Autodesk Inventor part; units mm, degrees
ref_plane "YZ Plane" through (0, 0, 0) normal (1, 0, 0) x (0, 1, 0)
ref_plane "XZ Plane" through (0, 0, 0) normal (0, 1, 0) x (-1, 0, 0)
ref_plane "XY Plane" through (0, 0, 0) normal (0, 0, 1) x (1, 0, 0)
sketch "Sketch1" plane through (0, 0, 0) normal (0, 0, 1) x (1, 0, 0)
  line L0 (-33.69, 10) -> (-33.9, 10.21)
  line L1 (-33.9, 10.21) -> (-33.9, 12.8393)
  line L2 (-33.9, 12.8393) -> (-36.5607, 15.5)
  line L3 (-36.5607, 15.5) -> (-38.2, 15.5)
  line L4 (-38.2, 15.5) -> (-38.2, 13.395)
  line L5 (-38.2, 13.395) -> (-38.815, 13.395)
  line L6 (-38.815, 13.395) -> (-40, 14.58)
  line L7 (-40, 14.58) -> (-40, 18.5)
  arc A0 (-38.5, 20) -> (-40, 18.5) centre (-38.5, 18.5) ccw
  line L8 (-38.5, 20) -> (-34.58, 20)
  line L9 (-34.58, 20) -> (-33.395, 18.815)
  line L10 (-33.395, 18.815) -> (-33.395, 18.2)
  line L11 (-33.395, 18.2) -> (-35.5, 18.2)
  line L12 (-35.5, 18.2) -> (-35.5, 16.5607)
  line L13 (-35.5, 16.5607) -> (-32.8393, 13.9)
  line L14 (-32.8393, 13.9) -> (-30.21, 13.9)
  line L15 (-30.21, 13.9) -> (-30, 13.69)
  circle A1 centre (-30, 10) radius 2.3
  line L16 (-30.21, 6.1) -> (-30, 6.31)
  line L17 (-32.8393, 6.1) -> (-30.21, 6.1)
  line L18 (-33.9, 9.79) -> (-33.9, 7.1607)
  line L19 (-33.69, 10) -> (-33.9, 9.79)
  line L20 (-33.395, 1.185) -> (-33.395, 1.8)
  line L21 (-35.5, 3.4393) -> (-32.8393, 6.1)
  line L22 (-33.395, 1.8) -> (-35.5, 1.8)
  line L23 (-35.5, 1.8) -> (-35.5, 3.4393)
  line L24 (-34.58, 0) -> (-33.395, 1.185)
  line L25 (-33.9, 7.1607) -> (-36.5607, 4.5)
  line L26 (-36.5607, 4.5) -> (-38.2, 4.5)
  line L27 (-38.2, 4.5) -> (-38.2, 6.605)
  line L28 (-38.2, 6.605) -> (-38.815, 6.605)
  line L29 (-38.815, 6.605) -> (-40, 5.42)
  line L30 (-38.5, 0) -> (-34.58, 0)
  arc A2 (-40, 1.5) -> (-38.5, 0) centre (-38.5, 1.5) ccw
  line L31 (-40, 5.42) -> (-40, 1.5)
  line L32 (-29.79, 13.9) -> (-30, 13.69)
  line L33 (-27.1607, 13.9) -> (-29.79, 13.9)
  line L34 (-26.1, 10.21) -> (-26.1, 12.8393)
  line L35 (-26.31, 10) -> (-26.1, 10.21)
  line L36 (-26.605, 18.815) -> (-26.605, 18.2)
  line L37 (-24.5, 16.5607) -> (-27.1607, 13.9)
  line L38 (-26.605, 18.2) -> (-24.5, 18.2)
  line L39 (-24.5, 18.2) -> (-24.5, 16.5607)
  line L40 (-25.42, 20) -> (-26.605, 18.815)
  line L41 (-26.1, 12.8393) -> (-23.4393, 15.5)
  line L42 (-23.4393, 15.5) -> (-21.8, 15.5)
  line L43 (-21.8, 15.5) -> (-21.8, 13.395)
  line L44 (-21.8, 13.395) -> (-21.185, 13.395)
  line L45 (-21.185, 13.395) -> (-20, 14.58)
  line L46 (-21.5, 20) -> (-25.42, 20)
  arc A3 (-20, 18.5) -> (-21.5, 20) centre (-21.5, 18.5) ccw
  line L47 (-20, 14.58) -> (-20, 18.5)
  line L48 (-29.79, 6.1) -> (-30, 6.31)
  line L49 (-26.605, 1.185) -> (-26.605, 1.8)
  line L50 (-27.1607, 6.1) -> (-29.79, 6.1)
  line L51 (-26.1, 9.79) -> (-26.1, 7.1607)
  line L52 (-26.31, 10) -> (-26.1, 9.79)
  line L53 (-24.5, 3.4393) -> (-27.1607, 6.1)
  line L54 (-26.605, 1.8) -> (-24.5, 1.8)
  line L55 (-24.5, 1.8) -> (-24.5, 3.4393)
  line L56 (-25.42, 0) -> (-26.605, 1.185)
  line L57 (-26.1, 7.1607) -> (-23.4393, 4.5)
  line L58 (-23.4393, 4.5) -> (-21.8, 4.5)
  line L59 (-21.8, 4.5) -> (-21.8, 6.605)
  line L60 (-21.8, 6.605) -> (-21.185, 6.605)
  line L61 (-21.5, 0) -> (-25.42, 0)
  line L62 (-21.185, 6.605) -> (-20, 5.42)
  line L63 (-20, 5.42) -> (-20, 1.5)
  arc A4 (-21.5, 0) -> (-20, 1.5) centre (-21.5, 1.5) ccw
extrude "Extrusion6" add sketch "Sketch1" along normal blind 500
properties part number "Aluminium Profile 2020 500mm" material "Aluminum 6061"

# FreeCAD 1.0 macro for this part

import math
import FreeCAD as App
import Part
import Sketcher

V = App.Vector

doc = App.newDocument("Part")
body = doc.addObject("PartDesign::Body", "Body")

sketch1 = doc.addObject("Sketcher::SketchObject", "Sketch")
body.addObject(sketch1)
sketch1.AttachmentSupport = (doc.XY_Plane, [""])
sketch1.MapMode = "FlatFace"
sketch1.addGeometry([
    Part.LineSegment(V(-33.9, 10.21, 0), V(-33.69, 10, 0)),
    Part.LineSegment(V(-33.69, 10, 0), V(-33.9, 9.79, 0)),
    Part.LineSegment(V(-33.9, 9.79, 0), V(-33.9, 7.16, 0)),
    Part.LineSegment(V(-33.9, 7.16, 0), V(-36.56, 4.5, 0)),
    Part.LineSegment(V(-36.56, 4.5, 0), V(-38.2, 4.5, 0)),
    Part.LineSegment(V(-38.2, 4.5, 0), V(-38.2, 6.61, 0)),
    Part.LineSegment(V(-38.2, 6.61, 0), V(-38.81, 6.61, 0)),
    Part.LineSegment(V(-38.81, 6.61, 0), V(-40, 5.42, 0)),
    Part.LineSegment(V(-40, 5.42, 0), V(-40, 1.5, 0)),
    Part.ArcOfCircle(Part.Circle(V(-38.5, 1.5, 0), V(0, 0, 1), 1.5), math.radians(180), math.radians(270)),
    Part.LineSegment(V(-38.5, 0, 0), V(-34.58, 0, 0)),
    Part.LineSegment(V(-34.58, 0, 0), V(-33.4, 1.19, 0)),
    Part.LineSegment(V(-33.4, 1.19, 0), V(-33.4, 1.8, 0)),
    Part.LineSegment(V(-33.4, 1.8, 0), V(-35.5, 1.8, 0)),
    Part.LineSegment(V(-35.5, 1.8, 0), V(-35.5, 3.44, 0)),
    Part.LineSegment(V(-35.5, 3.44, 0), V(-32.84, 6.1, 0)),
    Part.LineSegment(V(-32.84, 6.1, 0), V(-30.21, 6.1, 0)),
    Part.LineSegment(V(-30.21, 6.1, 0), V(-30, 6.31, 0)),
    Part.LineSegment(V(-30, 6.31, 0), V(-29.79, 6.1, 0)),
    Part.LineSegment(V(-29.79, 6.1, 0), V(-27.16, 6.1, 0)),
    Part.LineSegment(V(-27.16, 6.1, 0), V(-24.5, 3.44, 0)),
    Part.LineSegment(V(-24.5, 3.44, 0), V(-24.5, 1.8, 0)),
    Part.LineSegment(V(-24.5, 1.8, 0), V(-26.61, 1.8, 0)),
    Part.LineSegment(V(-26.61, 1.8, 0), V(-26.61, 1.19, 0)),
    Part.LineSegment(V(-26.61, 1.19, 0), V(-25.42, 0, 0)),
    Part.LineSegment(V(-25.42, 0, 0), V(-21.5, 0, 0)),
    Part.ArcOfCircle(Part.Circle(V(-21.5, 1.5, 0), V(0, 0, 1), 1.5), math.radians(-90), math.radians(0)),
    Part.LineSegment(V(-20, 1.5, 0), V(-20, 5.42, 0)),
    Part.LineSegment(V(-20, 5.42, 0), V(-21.18, 6.61, 0)),
    Part.LineSegment(V(-21.18, 6.61, 0), V(-21.8, 6.61, 0)),
    Part.LineSegment(V(-21.8, 6.61, 0), V(-21.8, 4.5, 0)),
    Part.LineSegment(V(-21.8, 4.5, 0), V(-23.44, 4.5, 0)),
    Part.LineSegment(V(-23.44, 4.5, 0), V(-26.1, 7.16, 0)),
    Part.LineSegment(V(-26.1, 7.16, 0), V(-26.1, 9.79, 0)),
    Part.LineSegment(V(-26.1, 9.79, 0), V(-26.31, 10, 0)),
    Part.LineSegment(V(-26.31, 10, 0), V(-26.1, 10.21, 0)),
    Part.LineSegment(V(-26.1, 10.21, 0), V(-26.1, 12.84, 0)),
    Part.LineSegment(V(-26.1, 12.84, 0), V(-23.44, 15.5, 0)),
    Part.LineSegment(V(-23.44, 15.5, 0), V(-21.8, 15.5, 0)),
    Part.LineSegment(V(-21.8, 15.5, 0), V(-21.8, 13.39, 0)),
    Part.LineSegment(V(-21.8, 13.39, 0), V(-21.18, 13.39, 0)),
    Part.LineSegment(V(-21.18, 13.39, 0), V(-20, 14.58, 0)),
    Part.LineSegment(V(-20, 14.58, 0), V(-20, 18.5, 0)),
    Part.ArcOfCircle(Part.Circle(V(-21.5, 18.5, 0), V(0, 0, 1), 1.5), math.radians(0), math.radians(90)),
    Part.LineSegment(V(-21.5, 20, 0), V(-25.42, 20, 0)),
    Part.LineSegment(V(-25.42, 20, 0), V(-26.61, 18.82, 0)),
    Part.LineSegment(V(-26.61, 18.82, 0), V(-26.61, 18.2, 0)),
    Part.LineSegment(V(-26.61, 18.2, 0), V(-24.5, 18.2, 0)),
    Part.LineSegment(V(-24.5, 18.2, 0), V(-24.5, 16.56, 0)),
    Part.LineSegment(V(-24.5, 16.56, 0), V(-27.16, 13.9, 0)),
    Part.LineSegment(V(-27.16, 13.9, 0), V(-29.79, 13.9, 0)),
    Part.LineSegment(V(-29.79, 13.9, 0), V(-30, 13.69, 0)),
    Part.LineSegment(V(-30, 13.69, 0), V(-30.21, 13.9, 0)),
    Part.LineSegment(V(-30.21, 13.9, 0), V(-32.84, 13.9, 0)),
    Part.LineSegment(V(-32.84, 13.9, 0), V(-35.5, 16.56, 0)),
    Part.LineSegment(V(-35.5, 16.56, 0), V(-35.5, 18.2, 0)),
    Part.LineSegment(V(-35.5, 18.2, 0), V(-33.4, 18.2, 0)),
    Part.LineSegment(V(-33.4, 18.2, 0), V(-33.4, 18.82, 0)),
    Part.LineSegment(V(-33.4, 18.82, 0), V(-34.58, 20, 0)),
    Part.LineSegment(V(-34.58, 20, 0), V(-38.5, 20, 0)),
    Part.ArcOfCircle(Part.Circle(V(-38.5, 18.5, 0), V(0, 0, 1), 1.5), math.radians(90), math.radians(180)),
    Part.LineSegment(V(-40, 18.5, 0), V(-40, 14.58, 0)),
    Part.LineSegment(V(-40, 14.58, 0), V(-38.81, 13.39, 0)),
    Part.LineSegment(V(-38.81, 13.39, 0), V(-38.2, 13.39, 0)),
    Part.LineSegment(V(-38.2, 13.39, 0), V(-38.2, 15.5, 0)),
    Part.LineSegment(V(-38.2, 15.5, 0), V(-36.56, 15.5, 0)),
    Part.LineSegment(V(-36.56, 15.5, 0), V(-33.9, 12.84, 0)),
    Part.LineSegment(V(-33.9, 12.84, 0), V(-33.9, 10.21, 0)),
    Part.Circle(V(-30, 10, 0), V(0, 0, 1), 2.3),
], False)
sketch1.addConstraint([
    Sketcher.Constraint("Coincident", 0, 2, 1, 1),
    Sketcher.Constraint("Coincident", 1, 2, 2, 1),
    Sketcher.Constraint("Coincident", 2, 2, 3, 1),
    Sketcher.Constraint("Coincident", 3, 2, 4, 1),
    Sketcher.Constraint("Coincident", 4, 2, 5, 1),
    Sketcher.Constraint("Coincident", 5, 2, 6, 1),
    Sketcher.Constraint("Coincident", 6, 2, 7, 1),
    Sketcher.Constraint("Coincident", 7, 2, 8, 1),
    Sketcher.Constraint("Tangent", 8, 2, 9, 1),
    Sketcher.Constraint("Tangent", 9, 2, 10, 1),
    Sketcher.Constraint("Coincident", 10, 2, 11, 1),
    Sketcher.Constraint("Coincident", 11, 2, 12, 1),
    Sketcher.Constraint("Coincident", 12, 2, 13, 1),
    Sketcher.Constraint("Coincident", 13, 2, 14, 1),
    Sketcher.Constraint("Coincident", 14, 2, 15, 1),
    Sketcher.Constraint("Coincident", 15, 2, 16, 1),
    Sketcher.Constraint("Coincident", 16, 2, 17, 1),
    Sketcher.Constraint("Coincident", 17, 2, 18, 1),
    Sketcher.Constraint("Coincident", 18, 2, 19, 1),
    Sketcher.Constraint("Coincident", 19, 2, 20, 1),
    Sketcher.Constraint("Coincident", 20, 2, 21, 1),
    Sketcher.Constraint("Coincident", 21, 2, 22, 1),
    Sketcher.Constraint("Coincident", 22, 2, 23, 1),
    Sketcher.Constraint("Coincident", 23, 2, 24, 1),
    Sketcher.Constraint("Coincident", 24, 2, 25, 1),
    Sketcher.Constraint("Tangent", 25, 2, 26, 1),
    Sketcher.Constraint("Tangent", 26, 2, 27, 1),
    Sketcher.Constraint("Coincident", 27, 2, 28, 1),
    Sketcher.Constraint("Coincident", 28, 2, 29, 1),
    Sketcher.Constraint("Coincident", 29, 2, 30, 1),
    Sketcher.Constraint("Coincident", 30, 2, 31, 1),
    Sketcher.Constraint("Coincident", 31, 2, 32, 1),
    Sketcher.Constraint("Coincident", 32, 2, 33, 1),
    Sketcher.Constraint("Coincident", 33, 2, 34, 1),
    Sketcher.Constraint("Coincident", 34, 2, 35, 1),
    Sketcher.Constraint("Coincident", 35, 2, 36, 1),
    Sketcher.Constraint("Coincident", 36, 2, 37, 1),
    Sketcher.Constraint("Coincident", 37, 2, 38, 1),
    Sketcher.Constraint("Coincident", 38, 2, 39, 1),
    Sketcher.Constraint("Coincident", 39, 2, 40, 1),
    Sketcher.Constraint("Coincident", 40, 2, 41, 1),
    Sketcher.Constraint("Coincident", 41, 2, 42, 1),
    Sketcher.Constraint("Tangent", 42, 2, 43, 1),
    Sketcher.Constraint("Tangent", 43, 2, 44, 1),
    Sketcher.Constraint("Coincident", 44, 2, 45, 1),
    Sketcher.Constraint("Coincident", 45, 2, 46, 1),
    Sketcher.Constraint("Coincident", 46, 2, 47, 1),
    Sketcher.Constraint("Coincident", 47, 2, 48, 1),
    Sketcher.Constraint("Coincident", 48, 2, 49, 1),
    Sketcher.Constraint("Coincident", 49, 2, 50, 1),
    Sketcher.Constraint("Coincident", 50, 2, 51, 1),
    Sketcher.Constraint("Coincident", 51, 2, 52, 1),
    Sketcher.Constraint("Coincident", 52, 2, 53, 1),
    Sketcher.Constraint("Coincident", 53, 2, 54, 1),
    Sketcher.Constraint("Coincident", 54, 2, 55, 1),
    Sketcher.Constraint("Coincident", 55, 2, 56, 1),
    Sketcher.Constraint("Coincident", 56, 2, 57, 1),
    Sketcher.Constraint("Coincident", 57, 2, 58, 1),
    Sketcher.Constraint("Coincident", 58, 2, 59, 1),
    Sketcher.Constraint("Tangent", 59, 2, 60, 1),
    Sketcher.Constraint("Tangent", 60, 2, 61, 1),
    Sketcher.Constraint("Coincident", 61, 2, 62, 1),
    Sketcher.Constraint("Coincident", 62, 2, 63, 1),
    Sketcher.Constraint("Coincident", 63, 2, 64, 1),
    Sketcher.Constraint("Coincident", 64, 2, 65, 1),
    Sketcher.Constraint("Coincident", 65, 2, 66, 1),
    Sketcher.Constraint("Coincident", 66, 2, 67, 1),
    Sketcher.Constraint("Coincident", 67, 2, 0, 1),
    Sketcher.Constraint("Vertical", 2),
    Sketcher.Constraint("Horizontal", 4),
    Sketcher.Constraint("Vertical", 5),
    Sketcher.Constraint("Horizontal", 6),
    Sketcher.Constraint("Vertical", 8),
    Sketcher.Constraint("Horizontal", 10),
    Sketcher.Constraint("Vertical", 12),
    Sketcher.Constraint("Horizontal", 13),
    Sketcher.Constraint("Vertical", 14),
    Sketcher.Constraint("Horizontal", 16),
    Sketcher.Constraint("Horizontal", 19),
    Sketcher.Constraint("Vertical", 21),
    Sketcher.Constraint("Horizontal", 22),
    Sketcher.Constraint("Vertical", 23),
    Sketcher.Constraint("Horizontal", 25),
    Sketcher.Constraint("Vertical", 27),
    Sketcher.Constraint("Horizontal", 29),
    Sketcher.Constraint("Vertical", 30),
    Sketcher.Constraint("Horizontal", 31),
    Sketcher.Constraint("Vertical", 33),
    Sketcher.Constraint("Vertical", 36),
    Sketcher.Constraint("Horizontal", 38),
    Sketcher.Constraint("Vertical", 39),
    Sketcher.Constraint("Horizontal", 40),
    Sketcher.Constraint("Vertical", 42),
    Sketcher.Constraint("Horizontal", 44),
    Sketcher.Constraint("Vertical", 46),
    Sketcher.Constraint("Horizontal", 47),
    Sketcher.Constraint("Vertical", 48),
    Sketcher.Constraint("Horizontal", 50),
    Sketcher.Constraint("Horizontal", 53),
    Sketcher.Constraint("Vertical", 55),
    Sketcher.Constraint("Horizontal", 56),
    Sketcher.Constraint("Vertical", 57),
    Sketcher.Constraint("Horizontal", 59),
    Sketcher.Constraint("Vertical", 61),
    Sketcher.Constraint("Horizontal", 63),
    Sketcher.Constraint("Vertical", 64),
    Sketcher.Constraint("Horizontal", 65),
    Sketcher.Constraint("Vertical", 67),
    Sketcher.Constraint("Equal", 9, 26),
    Sketcher.Constraint("Equal", 26, 43),
    Sketcher.Constraint("Equal", 43, 60),
    Sketcher.Constraint("PointOnObject", 9, 2, -1),
    Sketcher.Constraint("PointOnObject", 24, 2, -1),
    Sketcher.Constraint("Perpendicular", 0, 1),
    Sketcher.Constraint("Parallel", 1, 3),
    Sketcher.Constraint("Parallel", 3, 7),
    Sketcher.Constraint("Parallel", 7, 11),
    Sketcher.Constraint("Parallel", 11, 15),
    Sketcher.Constraint("Parallel", 15, 17),
    Sketcher.Constraint("Perpendicular", 17, 18),
    Sketcher.Constraint("Parallel", 18, 20),
    Sketcher.Constraint("Parallel", 20, 24),
    Sketcher.Constraint("Parallel", 24, 28),
    Sketcher.Constraint("Parallel", 28, 32),
    Sketcher.Constraint("Parallel", 32, 34),
    Sketcher.Constraint("Perpendicular", 34, 35),
    Sketcher.Constraint("Parallel", 35, 37),
    Sketcher.Constraint("Parallel", 37, 41),
    Sketcher.Constraint("Parallel", 41, 45),
    Sketcher.Constraint("Parallel", 45, 49),
    Sketcher.Constraint("Parallel", 49, 51),
    Sketcher.Constraint("Perpendicular", 51, 52),
    Sketcher.Constraint("Parallel", 52, 54),
    Sketcher.Constraint("Parallel", 54, 58),
    Sketcher.Constraint("Parallel", 58, 62),
    Sketcher.Constraint("Parallel", 62, 66),
    Sketcher.Constraint("Horizontal", 43, 3, 60, 3),
    Sketcher.Constraint("Horizontal", 68, 3, 0, 2),
    Sketcher.Constraint("Horizontal", 16, 2, 18, 2),
    Sketcher.Constraint("Horizontal", 14, 2, 20, 2),
    Sketcher.Constraint("Horizontal", 13, 2, 21, 2),
    Sketcher.Constraint("Horizontal", 11, 2, 23, 2),
    Sketcher.Constraint("Horizontal", 7, 2, 27, 2),
    Sketcher.Constraint("Horizontal", 6, 2, 28, 2),
    Sketcher.Constraint("Horizontal", 4, 2, 30, 2),
    Sketcher.Constraint("Horizontal", 2, 2, 32, 2),
    Sketcher.Constraint("Horizontal", 1, 2, 33, 2),
    Sketcher.Constraint("Horizontal", 0, 2, 34, 2),
    Sketcher.Constraint("Horizontal", 50, 2, 52, 2),
    Sketcher.Constraint("Horizontal", 48, 2, 54, 2),
    Sketcher.Constraint("Horizontal", 47, 2, 55, 2),
    Sketcher.Constraint("Horizontal", 45, 2, 57, 2),
    Sketcher.Constraint("Horizontal", 41, 2, 61, 2),
    Sketcher.Constraint("Horizontal", 40, 2, 62, 2),
    Sketcher.Constraint("Horizontal", 38, 2, 64, 2),
    Sketcher.Constraint("Horizontal", 36, 2, 66, 2),
    Sketcher.Constraint("Horizontal", 35, 2, 67, 2),
    Sketcher.Constraint("Vertical", 26, 3, 43, 3),
    Sketcher.Constraint("Vertical", 9, 3, 60, 3),
    Sketcher.Constraint("Vertical", 68, 3, 17, 2),
    Sketcher.Constraint("Vertical", 33, 2, 35, 2),
    Sketcher.Constraint("Vertical", 31, 2, 37, 2),
    Sketcher.Constraint("Vertical", 30, 2, 38, 2),
    Sketcher.Constraint("Vertical", 28, 2, 40, 2),
    Sketcher.Constraint("Vertical", 24, 2, 44, 2),
    Sketcher.Constraint("Vertical", 23, 2, 45, 2),
    Sketcher.Constraint("Vertical", 21, 2, 47, 2),
    Sketcher.Constraint("Vertical", 19, 2, 49, 2),
    Sketcher.Constraint("Vertical", 18, 2, 50, 2),
    Sketcher.Constraint("Vertical", 17, 2, 51, 2),
    Sketcher.Constraint("Vertical", 16, 2, 52, 2),
    Sketcher.Constraint("Vertical", 15, 2, 53, 2),
    Sketcher.Constraint("Vertical", 12, 2, 56, 2),
    Sketcher.Constraint("Vertical", 5, 2, 63, 2),
    Sketcher.Constraint("Equal", 16, 19),
    Sketcher.Constraint("Equal", 13, 22),
    Sketcher.Constraint("Equal", 10, 25),
    Sketcher.Constraint("Equal", 6, 29),
    Sketcher.Constraint("Equal", 4, 31),
    Sketcher.Constraint("Equal", 53, 2),
    Sketcher.Constraint("Equal", 56, 5),
    Sketcher.Constraint("Equal", 59, 8),
    Sketcher.Constraint("Equal", 63, 12),
    Sketcher.Constraint("Equal", 65, 14),
    Sketcher.Constraint("Equal", 33, 36),
    Sketcher.Constraint("Equal", 30, 39),
    Sketcher.Constraint("Equal", 27, 42),
    Sketcher.Constraint("Equal", 23, 46),
    Sketcher.Constraint("Equal", 21, 48),
    Sketcher.Constraint("Equal", 7, 11),
    Sketcher.Constraint("Equal", 3, 15),
    Sketcher.Constraint("Equal", 1, 17),
    Sketcher.Constraint("Diameter", 68, 4.6),
    Sketcher.Constraint("Radius", 9, 1.5),
    Sketcher.Constraint("DistanceX", 68, 3, -1, 1, 30.0),
    Sketcher.Constraint("DistanceY", -1, 1, 68, 3, 10.0),
    Sketcher.Constraint("DistanceX", 10, 1, 10, 2, 3.92),
    Sketcher.Constraint("DistanceX", 1, 2, -1, 1, 33.9),
    Sketcher.Constraint("DistanceY", -1, 1, 3, 2, 4.5),
    Sketcher.Constraint("DistanceX", 4, 2, -1, 1, 38.2),
    Sketcher.Constraint("DistanceX", 6, 2, 6, 1, 0.615),
    Sketcher.Constraint("DistanceX", 0, 2, -1, 1, 33.69),
    Sketcher.Constraint("DistanceX", 4, 2, 4, 1, 1.6393),
])
pad1 = doc.addObject("PartDesign::Pad", "Pad")
body.addObject(pad1)
pad1.Profile = sketch1
pad1.Length = 500

doc.recompute()
